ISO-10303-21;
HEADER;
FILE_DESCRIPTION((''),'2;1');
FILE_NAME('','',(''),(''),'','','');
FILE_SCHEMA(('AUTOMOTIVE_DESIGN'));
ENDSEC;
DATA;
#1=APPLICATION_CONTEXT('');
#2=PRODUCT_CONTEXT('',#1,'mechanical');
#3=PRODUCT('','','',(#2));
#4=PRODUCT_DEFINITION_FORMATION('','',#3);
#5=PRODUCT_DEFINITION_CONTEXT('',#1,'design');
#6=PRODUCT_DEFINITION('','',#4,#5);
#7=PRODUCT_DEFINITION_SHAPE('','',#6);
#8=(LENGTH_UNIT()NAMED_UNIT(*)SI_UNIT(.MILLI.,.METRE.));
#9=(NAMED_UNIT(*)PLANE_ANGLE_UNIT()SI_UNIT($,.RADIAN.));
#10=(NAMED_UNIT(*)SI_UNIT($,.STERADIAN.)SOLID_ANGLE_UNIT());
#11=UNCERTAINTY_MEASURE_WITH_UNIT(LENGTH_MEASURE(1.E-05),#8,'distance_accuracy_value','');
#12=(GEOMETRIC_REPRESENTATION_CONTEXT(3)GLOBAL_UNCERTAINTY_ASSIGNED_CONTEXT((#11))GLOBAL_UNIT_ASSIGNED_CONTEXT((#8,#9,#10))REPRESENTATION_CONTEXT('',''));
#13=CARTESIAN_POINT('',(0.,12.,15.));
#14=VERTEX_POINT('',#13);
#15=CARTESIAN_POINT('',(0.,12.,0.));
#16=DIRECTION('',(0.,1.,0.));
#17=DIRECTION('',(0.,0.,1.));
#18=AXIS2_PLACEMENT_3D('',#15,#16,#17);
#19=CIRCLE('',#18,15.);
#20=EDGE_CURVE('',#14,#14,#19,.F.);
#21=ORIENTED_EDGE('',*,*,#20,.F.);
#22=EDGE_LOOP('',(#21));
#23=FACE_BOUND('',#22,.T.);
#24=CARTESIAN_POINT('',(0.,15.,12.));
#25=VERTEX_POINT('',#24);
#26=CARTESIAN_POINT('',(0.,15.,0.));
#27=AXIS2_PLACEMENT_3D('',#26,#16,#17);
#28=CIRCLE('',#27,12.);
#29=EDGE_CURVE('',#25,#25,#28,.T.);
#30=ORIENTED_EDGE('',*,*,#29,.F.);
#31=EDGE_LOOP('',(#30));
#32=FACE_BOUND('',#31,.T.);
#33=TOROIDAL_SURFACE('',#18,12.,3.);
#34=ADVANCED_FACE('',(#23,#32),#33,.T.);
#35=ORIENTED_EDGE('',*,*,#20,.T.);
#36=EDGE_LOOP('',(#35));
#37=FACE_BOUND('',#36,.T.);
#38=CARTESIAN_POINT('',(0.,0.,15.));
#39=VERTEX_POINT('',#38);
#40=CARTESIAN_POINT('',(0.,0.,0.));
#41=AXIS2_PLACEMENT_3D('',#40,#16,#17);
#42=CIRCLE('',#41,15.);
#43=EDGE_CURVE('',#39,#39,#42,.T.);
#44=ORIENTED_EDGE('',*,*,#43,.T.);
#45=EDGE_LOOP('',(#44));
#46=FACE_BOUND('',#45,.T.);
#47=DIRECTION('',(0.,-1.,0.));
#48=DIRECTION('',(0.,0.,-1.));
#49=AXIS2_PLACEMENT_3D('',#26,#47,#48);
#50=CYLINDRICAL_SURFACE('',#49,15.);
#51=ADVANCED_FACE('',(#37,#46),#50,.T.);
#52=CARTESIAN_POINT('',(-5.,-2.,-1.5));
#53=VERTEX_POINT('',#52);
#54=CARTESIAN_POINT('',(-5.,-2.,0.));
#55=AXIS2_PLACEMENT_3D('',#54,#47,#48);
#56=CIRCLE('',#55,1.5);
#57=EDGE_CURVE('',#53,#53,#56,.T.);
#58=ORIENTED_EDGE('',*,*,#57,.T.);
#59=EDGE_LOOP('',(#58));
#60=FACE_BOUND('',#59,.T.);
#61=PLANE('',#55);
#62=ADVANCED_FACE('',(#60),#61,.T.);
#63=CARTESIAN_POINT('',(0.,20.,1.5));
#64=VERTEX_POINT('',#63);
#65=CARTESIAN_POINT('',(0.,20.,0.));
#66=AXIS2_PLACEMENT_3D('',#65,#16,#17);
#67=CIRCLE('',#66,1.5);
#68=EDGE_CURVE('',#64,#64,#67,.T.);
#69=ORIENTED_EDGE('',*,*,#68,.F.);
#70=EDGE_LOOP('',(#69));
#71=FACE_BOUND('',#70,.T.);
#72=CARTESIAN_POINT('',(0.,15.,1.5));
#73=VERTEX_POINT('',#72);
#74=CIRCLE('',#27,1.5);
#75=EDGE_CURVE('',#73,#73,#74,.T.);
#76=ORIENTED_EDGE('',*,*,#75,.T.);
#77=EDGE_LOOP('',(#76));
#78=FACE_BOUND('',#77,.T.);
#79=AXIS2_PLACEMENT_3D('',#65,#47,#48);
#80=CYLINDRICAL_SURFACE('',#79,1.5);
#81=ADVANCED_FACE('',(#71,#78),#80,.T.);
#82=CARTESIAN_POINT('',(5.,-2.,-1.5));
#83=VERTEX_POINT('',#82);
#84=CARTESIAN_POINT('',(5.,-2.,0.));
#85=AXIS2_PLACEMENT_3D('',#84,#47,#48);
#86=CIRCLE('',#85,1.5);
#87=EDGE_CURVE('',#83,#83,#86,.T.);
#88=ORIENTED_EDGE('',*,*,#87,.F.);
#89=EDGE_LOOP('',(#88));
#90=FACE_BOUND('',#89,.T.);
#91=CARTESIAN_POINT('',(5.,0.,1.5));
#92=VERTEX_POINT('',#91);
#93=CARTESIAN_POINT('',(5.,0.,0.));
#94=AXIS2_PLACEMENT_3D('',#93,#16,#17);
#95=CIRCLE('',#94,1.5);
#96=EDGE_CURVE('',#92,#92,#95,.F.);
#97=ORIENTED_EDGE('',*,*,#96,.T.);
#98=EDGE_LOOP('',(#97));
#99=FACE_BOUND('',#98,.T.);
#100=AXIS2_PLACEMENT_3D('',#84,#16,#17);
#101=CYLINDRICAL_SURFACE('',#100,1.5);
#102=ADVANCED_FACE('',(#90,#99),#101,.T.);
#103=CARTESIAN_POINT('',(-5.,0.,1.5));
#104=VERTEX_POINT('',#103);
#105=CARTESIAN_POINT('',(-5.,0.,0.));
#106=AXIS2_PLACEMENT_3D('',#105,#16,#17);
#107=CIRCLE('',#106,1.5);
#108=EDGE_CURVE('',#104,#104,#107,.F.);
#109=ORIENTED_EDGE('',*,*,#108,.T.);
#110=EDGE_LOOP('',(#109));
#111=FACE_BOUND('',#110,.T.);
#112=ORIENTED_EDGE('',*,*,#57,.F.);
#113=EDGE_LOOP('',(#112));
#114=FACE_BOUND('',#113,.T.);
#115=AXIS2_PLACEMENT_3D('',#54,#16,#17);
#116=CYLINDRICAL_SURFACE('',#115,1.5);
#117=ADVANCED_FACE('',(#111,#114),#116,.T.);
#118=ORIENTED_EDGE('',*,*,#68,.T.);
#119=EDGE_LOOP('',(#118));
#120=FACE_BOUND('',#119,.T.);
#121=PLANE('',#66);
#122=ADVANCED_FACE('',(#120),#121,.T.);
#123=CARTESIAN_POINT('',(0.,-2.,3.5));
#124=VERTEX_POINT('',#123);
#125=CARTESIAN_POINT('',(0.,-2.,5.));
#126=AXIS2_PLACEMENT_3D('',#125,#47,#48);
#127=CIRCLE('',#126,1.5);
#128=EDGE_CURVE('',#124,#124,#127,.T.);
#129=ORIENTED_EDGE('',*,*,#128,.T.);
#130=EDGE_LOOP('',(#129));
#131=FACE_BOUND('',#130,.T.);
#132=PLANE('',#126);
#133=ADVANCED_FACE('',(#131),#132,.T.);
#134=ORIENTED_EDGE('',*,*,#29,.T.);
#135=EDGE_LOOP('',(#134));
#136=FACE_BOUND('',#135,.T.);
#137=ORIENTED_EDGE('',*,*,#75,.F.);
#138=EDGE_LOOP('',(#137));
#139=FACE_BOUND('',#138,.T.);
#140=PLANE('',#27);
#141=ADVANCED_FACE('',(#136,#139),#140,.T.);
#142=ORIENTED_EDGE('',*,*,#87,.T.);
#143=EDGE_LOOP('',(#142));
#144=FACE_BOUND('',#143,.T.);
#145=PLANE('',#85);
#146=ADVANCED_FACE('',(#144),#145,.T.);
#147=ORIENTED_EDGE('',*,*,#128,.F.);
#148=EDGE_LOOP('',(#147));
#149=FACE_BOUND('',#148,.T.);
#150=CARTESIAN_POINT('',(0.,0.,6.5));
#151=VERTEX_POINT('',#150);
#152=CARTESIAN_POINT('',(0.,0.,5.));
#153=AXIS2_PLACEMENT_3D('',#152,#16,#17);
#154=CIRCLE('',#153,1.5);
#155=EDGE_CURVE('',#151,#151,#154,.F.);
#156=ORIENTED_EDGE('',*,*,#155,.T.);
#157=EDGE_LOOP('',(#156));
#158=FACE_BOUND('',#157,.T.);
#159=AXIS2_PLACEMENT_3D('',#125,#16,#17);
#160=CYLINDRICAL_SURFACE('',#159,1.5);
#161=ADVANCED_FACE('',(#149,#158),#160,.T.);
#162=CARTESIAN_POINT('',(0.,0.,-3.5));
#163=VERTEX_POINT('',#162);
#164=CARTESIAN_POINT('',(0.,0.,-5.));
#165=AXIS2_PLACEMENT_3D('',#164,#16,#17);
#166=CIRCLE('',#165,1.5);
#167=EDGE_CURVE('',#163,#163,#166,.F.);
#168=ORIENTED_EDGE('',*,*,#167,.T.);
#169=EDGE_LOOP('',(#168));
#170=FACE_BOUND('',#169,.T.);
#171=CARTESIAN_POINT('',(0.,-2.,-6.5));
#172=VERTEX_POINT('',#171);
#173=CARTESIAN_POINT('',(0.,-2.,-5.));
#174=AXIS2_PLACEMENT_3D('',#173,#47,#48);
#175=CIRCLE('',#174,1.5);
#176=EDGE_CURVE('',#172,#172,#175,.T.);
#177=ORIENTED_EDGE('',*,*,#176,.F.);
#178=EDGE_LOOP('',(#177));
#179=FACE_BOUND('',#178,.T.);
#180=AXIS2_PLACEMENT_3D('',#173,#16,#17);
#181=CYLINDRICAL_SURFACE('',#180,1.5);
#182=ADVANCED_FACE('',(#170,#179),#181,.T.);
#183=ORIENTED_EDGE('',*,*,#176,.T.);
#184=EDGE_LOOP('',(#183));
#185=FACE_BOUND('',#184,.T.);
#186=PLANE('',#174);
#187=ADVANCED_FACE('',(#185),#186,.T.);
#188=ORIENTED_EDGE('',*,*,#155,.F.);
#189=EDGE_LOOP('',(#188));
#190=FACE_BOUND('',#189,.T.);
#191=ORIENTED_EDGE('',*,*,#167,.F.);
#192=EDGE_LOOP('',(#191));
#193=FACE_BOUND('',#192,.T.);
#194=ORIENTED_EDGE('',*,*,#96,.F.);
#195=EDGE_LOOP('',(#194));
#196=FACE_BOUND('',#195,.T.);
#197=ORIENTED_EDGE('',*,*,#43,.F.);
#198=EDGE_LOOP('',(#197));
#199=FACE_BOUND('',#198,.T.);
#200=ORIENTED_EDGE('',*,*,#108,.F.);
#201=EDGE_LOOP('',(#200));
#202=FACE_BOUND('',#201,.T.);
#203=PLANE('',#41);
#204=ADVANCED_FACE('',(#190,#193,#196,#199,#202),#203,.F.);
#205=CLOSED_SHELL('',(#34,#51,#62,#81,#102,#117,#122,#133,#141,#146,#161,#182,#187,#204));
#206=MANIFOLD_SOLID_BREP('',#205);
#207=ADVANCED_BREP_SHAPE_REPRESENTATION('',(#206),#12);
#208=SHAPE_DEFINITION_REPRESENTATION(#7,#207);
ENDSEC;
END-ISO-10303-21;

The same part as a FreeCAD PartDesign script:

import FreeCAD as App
import Part
import Sketcher
from FreeCAD import Vector
Q = App.Units.Quantity


def edges_at(feature, points):
    """Names of the edges that pass closest to the given points."""
    edges = feature.Shape.Edges
    near = lambda p: min(range(len(edges)), key=lambda i: edges[i].distToShape(Part.Vertex(*p))[0])
    return sorted({f"Edge{near(p) + 1}" for p in points})

doc = App.newDocument("Part")
body = doc.addObject("PartDesign::Body", "Body")

# Sketch on XZ plane
sketch1 = doc.addObject("Sketcher::SketchObject", "Sketch")
body.addObject(sketch1)
sketch1.AttachmentSupport = (doc.XZ_Plane, [""])
sketch1.MapMode = "FlatFace"
sketch1.addGeometry(Part.Circle(Vector(0, 0, 0), Vector(0, 0, 1), 15), False)
sketch1.addConstraint(Sketcher.Constraint("Coincident", 0, 3, -1, 1))
sketch1.addConstraint(Sketcher.Constraint("Diameter", 0, Q("30 mm")))
pad1 = doc.addObject("PartDesign::Pad", "Pad")
body.addObject(pad1)
pad1.Profile = sketch1
pad1.Length = 15
pad1.Reversed = True
doc.recompute()

fillet = doc.addObject("PartDesign::Fillet", "Fillet")
body.addObject(fillet)
fillet.Base = (pad1, edges_at(pad1, [(0, 15, -15)]))
fillet.Radius = 3

# Sketch on XZ plane
sketch2 = doc.addObject("Sketcher::SketchObject", "Sketch001")
body.addObject(sketch2)
sketch2.AttachmentSupport = (doc.XZ_Plane, [""])
sketch2.MapMode = "FlatFace"
sketch2.AttachmentOffset = App.Placement(Vector(0, 0, -15), App.Rotation())
sketch2.addGeometry(Part.Circle(Vector(0, 0, 0), Vector(0, 0, 1), 1.5), False)
sketch2.addConstraint(Sketcher.Constraint("Coincident", 0, 3, -1, 1))
sketch2.addConstraint(Sketcher.Constraint("Diameter", 0, Q("3 mm")))
pad2 = doc.addObject("PartDesign::Pad", "Pad001")
body.addObject(pad2)
pad2.Profile = sketch2
pad2.Length = 5
pad2.Reversed = True

# Sketch on XZ plane
sketch3 = doc.addObject("Sketcher::SketchObject", "Sketch002")
body.addObject(sketch3)
sketch3.AttachmentSupport = (doc.XZ_Plane, [""])
sketch3.MapMode = "FlatFace"
sketch3.addGeometry(Part.Circle(Vector(0, 5, 0), Vector(0, 0, 1), 1.5), False)
sketch3.addGeometry(Part.Circle(Vector(-5, 0, 0), Vector(0, 0, 1), 1.5), False)
sketch3.addGeometry(Part.Circle(Vector(5, 0, 0), Vector(0, 0, 1), 1.5), False)
sketch3.addGeometry(Part.Circle(Vector(0, -5, 0), Vector(0, 0, 1), 1.5), False)
sketch3.addConstraint(Sketcher.Constraint("Equal", 0, 1))
sketch3.addConstraint(Sketcher.Constraint("Equal", 1, 2))
sketch3.addConstraint(Sketcher.Constraint("Equal", 2, 3))
sketch3.addConstraint(Sketcher.Constraint("Symmetric", 1, 3, 2, 3, -1, 1))
sketch3.addConstraint(Sketcher.Constraint("Symmetric", 0, 3, 3, 3, -1, 1))
sketch3.addConstraint(Sketcher.Constraint("PointOnObject", 0, 3, -2))
sketch3.addConstraint(Sketcher.Constraint("PointOnObject", 1, 3, -1))
sketch3.addConstraint(Sketcher.Constraint("Diameter", 0, Q("3 mm")))
sketch3.addConstraint(Sketcher.Constraint("DistanceY", -1, 1, 0, 3, Q("5 mm")))
sketch3.addConstraint(Sketcher.Constraint("DistanceX", 1, 3, -1, 1, Q("5 mm")))
pad3 = doc.addObject("PartDesign::Pad", "Pad002")
body.addObject(pad3)
pad3.Profile = sketch3
pad3.Length = 2

doc.recompute()
